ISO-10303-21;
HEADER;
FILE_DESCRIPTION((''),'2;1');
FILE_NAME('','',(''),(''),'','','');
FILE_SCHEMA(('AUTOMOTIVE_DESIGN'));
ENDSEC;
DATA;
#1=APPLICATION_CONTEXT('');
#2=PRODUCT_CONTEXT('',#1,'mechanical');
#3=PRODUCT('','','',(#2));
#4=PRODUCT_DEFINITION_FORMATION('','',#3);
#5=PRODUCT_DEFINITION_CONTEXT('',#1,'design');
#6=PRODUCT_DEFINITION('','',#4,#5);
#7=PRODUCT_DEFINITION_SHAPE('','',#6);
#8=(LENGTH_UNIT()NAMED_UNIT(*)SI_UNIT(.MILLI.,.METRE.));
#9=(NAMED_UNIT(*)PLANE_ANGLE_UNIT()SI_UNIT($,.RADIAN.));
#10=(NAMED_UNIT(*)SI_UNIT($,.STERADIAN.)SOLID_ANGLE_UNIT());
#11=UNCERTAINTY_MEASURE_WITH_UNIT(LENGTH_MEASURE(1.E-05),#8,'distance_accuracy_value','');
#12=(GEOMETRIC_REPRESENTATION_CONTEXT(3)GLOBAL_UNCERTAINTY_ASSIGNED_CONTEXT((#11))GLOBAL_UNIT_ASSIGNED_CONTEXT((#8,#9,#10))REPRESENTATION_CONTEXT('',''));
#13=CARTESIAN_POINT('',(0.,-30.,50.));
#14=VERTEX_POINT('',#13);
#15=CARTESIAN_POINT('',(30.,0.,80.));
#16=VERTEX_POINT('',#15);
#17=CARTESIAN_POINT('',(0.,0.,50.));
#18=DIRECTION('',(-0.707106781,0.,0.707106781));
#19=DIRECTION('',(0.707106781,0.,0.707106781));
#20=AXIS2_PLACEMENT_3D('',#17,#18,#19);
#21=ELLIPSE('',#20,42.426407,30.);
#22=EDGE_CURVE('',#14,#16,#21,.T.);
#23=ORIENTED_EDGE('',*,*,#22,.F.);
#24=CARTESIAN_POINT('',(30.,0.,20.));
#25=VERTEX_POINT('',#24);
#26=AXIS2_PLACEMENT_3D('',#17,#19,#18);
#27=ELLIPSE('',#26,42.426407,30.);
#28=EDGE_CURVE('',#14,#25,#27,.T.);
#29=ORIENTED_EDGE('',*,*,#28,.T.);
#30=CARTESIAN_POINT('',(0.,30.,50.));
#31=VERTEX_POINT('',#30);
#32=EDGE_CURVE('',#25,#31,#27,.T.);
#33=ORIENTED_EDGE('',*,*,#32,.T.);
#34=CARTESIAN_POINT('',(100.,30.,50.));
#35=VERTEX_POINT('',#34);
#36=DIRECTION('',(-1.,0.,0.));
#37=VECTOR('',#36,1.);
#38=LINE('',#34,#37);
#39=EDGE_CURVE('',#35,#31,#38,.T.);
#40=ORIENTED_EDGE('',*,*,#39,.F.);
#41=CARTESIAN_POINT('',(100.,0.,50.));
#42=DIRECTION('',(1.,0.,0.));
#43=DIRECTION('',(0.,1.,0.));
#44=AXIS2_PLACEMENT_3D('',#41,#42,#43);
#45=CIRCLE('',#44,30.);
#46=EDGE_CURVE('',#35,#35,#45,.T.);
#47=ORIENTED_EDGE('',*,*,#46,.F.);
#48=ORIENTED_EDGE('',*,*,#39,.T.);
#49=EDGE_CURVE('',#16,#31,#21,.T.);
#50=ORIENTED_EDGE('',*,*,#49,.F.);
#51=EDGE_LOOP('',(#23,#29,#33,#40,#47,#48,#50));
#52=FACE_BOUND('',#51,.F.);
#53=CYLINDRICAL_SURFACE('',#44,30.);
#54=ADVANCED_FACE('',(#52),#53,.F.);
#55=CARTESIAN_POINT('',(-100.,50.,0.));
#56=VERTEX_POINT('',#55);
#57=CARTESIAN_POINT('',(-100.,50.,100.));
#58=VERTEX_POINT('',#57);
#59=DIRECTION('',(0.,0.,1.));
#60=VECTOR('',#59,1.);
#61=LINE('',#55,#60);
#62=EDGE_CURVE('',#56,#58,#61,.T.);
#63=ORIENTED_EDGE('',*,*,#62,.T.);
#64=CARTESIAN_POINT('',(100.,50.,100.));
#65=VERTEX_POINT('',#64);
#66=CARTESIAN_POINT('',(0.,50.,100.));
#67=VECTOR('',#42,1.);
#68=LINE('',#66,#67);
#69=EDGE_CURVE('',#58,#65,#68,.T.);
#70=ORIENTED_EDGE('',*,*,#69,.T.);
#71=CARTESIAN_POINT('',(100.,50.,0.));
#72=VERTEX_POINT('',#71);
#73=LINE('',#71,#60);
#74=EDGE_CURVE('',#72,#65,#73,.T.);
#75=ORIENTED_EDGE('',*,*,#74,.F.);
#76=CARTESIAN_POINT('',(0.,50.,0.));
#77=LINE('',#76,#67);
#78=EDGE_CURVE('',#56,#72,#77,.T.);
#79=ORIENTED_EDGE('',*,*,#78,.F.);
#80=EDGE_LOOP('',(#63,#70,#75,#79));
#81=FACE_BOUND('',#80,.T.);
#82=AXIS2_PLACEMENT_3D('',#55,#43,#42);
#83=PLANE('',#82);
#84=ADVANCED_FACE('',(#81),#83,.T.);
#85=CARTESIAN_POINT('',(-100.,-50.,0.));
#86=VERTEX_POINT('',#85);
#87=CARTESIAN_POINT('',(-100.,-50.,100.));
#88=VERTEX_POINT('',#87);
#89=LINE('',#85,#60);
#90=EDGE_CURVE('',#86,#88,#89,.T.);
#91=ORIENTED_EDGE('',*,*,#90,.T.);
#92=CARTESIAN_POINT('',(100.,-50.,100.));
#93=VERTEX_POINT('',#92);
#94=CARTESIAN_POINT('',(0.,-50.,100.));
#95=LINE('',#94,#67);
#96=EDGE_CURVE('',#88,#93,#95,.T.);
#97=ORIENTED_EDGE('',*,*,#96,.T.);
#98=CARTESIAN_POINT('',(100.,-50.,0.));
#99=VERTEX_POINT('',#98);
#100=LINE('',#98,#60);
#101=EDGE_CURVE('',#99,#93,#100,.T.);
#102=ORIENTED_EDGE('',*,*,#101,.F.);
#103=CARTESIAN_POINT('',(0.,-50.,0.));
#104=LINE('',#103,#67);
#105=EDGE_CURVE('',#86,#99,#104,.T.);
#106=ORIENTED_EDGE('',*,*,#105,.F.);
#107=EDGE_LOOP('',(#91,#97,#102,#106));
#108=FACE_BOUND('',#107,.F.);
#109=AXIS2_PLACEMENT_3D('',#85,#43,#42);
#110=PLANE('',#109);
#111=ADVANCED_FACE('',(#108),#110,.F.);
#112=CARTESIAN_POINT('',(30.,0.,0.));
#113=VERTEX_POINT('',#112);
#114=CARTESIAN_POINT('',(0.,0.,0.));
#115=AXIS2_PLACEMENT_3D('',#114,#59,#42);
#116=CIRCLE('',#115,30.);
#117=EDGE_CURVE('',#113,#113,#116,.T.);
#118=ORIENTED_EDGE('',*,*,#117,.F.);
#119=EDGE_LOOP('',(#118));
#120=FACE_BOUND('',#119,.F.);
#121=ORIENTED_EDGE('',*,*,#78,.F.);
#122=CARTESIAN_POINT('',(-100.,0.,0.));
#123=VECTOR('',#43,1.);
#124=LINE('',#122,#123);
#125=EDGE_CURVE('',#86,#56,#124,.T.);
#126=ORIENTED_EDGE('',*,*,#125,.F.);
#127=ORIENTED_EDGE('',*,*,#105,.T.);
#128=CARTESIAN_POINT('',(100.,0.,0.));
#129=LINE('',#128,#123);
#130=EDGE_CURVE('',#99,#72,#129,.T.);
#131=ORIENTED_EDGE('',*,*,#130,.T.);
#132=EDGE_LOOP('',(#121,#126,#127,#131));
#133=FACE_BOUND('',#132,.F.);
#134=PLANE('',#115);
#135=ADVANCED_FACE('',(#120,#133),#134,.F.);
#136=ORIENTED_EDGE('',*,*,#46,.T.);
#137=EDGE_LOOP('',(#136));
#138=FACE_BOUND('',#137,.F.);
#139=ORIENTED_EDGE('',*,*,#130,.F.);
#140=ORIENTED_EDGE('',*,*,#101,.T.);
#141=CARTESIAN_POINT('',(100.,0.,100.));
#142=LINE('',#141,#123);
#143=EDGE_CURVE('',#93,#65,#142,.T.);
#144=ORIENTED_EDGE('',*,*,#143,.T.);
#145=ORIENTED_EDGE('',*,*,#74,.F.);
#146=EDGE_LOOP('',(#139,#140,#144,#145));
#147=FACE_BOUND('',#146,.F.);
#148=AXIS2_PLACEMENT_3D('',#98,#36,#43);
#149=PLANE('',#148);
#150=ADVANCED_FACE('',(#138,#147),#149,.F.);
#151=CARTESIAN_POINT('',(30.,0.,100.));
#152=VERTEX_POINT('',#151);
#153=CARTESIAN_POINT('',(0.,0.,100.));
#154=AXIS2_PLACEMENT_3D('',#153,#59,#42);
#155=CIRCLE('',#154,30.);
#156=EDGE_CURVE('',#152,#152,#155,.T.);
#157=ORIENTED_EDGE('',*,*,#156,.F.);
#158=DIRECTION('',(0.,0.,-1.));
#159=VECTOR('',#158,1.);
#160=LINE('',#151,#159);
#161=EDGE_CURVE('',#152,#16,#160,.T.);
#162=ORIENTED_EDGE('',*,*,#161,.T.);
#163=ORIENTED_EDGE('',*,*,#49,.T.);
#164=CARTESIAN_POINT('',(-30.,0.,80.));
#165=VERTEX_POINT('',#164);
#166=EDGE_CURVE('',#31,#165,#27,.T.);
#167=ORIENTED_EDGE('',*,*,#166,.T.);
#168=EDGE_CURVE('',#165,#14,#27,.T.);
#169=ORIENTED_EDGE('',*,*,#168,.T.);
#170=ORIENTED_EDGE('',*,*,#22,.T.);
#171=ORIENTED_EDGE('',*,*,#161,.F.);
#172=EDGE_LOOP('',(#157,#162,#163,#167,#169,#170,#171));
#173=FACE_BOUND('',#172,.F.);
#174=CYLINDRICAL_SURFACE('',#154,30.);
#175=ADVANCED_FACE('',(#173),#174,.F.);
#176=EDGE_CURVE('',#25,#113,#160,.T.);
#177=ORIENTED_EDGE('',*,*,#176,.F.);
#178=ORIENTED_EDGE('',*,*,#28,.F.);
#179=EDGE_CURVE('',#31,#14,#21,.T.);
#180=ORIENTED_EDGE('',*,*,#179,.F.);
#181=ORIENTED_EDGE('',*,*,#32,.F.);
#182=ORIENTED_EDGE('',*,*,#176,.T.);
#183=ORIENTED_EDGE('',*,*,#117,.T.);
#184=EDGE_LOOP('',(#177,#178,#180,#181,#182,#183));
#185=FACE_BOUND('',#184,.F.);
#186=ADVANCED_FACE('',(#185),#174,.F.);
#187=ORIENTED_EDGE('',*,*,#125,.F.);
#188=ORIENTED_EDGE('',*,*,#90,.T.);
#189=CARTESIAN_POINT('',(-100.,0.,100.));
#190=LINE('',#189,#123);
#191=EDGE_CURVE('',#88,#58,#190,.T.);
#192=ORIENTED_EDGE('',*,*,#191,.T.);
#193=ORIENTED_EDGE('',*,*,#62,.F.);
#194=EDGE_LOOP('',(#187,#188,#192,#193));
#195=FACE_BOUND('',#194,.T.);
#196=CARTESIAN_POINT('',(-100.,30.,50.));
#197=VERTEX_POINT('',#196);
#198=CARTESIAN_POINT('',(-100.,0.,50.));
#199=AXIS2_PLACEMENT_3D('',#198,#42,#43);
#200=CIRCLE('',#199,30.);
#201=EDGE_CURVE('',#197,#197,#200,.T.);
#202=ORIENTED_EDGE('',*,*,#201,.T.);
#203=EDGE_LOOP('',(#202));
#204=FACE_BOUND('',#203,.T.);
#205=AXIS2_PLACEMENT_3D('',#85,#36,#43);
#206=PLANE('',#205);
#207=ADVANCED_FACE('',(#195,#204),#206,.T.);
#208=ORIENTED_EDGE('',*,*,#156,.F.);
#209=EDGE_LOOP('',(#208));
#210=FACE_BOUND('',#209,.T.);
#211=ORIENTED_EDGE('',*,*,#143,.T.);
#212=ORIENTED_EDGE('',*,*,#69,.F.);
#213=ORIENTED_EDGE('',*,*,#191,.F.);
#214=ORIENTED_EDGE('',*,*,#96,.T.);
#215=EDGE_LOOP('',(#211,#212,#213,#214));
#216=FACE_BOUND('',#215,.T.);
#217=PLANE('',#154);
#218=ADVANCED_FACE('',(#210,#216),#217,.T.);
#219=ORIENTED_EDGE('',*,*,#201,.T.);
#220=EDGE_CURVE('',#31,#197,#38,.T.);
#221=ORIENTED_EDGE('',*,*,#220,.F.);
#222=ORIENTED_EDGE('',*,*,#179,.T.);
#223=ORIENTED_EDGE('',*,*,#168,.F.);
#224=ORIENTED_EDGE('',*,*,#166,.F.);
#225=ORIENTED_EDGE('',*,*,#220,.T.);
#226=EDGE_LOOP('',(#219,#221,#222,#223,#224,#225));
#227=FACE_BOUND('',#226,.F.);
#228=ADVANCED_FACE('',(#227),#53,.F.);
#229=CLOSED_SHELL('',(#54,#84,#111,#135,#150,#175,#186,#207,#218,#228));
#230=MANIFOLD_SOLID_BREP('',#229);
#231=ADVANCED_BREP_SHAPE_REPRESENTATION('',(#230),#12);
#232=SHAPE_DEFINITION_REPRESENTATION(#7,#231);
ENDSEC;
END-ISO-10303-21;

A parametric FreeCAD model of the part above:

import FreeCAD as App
import Part
import Sketcher

V = App.Vector

doc = App.newDocument("Part")
body = doc.addObject("PartDesign::Body", "Body")

# Sketch on XY plane
sketch1 = body.newObject("Sketcher::SketchObject", "Sketch")
sketch1.AttachmentSupport = (doc.getObject("XY_Plane"), [""])
sketch1.MapMode = "FlatFace"
sketch1.addGeometry([
    Part.LineSegment(V(-100, 50, 0), V(-100, -50, 0)),
    Part.LineSegment(V(-100, -50, 0), V(100, -50, 0)),
    Part.LineSegment(V(100, -50, 0), V(100, 50, 0)),
    Part.LineSegment(V(100, 50, 0), V(-100, 50, 0)),
], False)
sketch1.addConstraint([
    Sketcher.Constraint("Coincident", 0, 2, 1, 1),
    Sketcher.Constraint("Coincident", 1, 2, 2, 1),
    Sketcher.Constraint("Coincident", 2, 2, 3, 1),
    Sketcher.Constraint("Coincident", 3, 2, 0, 1),
    Sketcher.Constraint("Vertical", 0),
    Sketcher.Constraint("Horizontal", 1),
    Sketcher.Constraint("Vertical", 2),
    Sketcher.Constraint("Horizontal", 3),
    Sketcher.Constraint("Symmetric", 0, 2, 2, 2, -1, 1),
    Sketcher.Constraint("DistanceX", 1, 1, 1, 2, 200.0),
    Sketcher.Constraint("DistanceY", 0, 2, 0, 1, 100.0),
])
pad1 = body.newObject("PartDesign::Pad", "Pad")
pad1.Profile = sketch1
pad1.Length = 100

# Sketch on XY plane
sketch2 = body.newObject("Sketcher::SketchObject", "Sketch001")
sketch2.AttachmentSupport = (doc.getObject("XY_Plane"), [""])
sketch2.MapMode = "FlatFace"
sketch2.AttachmentOffset = App.Placement(V(0, 0, 100), App.Rotation())
sketch2.addGeometry(Part.Circle(V(0, 0, 0), V(0, 0, 1), 30), False)
sketch2.addConstraint([
    Sketcher.Constraint("Coincident", 0, 3, -1, 1),
    Sketcher.Constraint("Diameter", 0, 60.0),
])
pocket1 = body.newObject("PartDesign::Pocket", "Pocket")
pocket1.Profile = sketch2
pocket1.Type = "ThroughAll"

# Sketch on YZ plane
sketch3 = body.newObject("Sketcher::SketchObject", "Sketch002")
sketch3.AttachmentSupport = (doc.getObject("YZ_Plane"), [""])
sketch3.MapMode = "FlatFace"
sketch3.AttachmentOffset = App.Placement(V(0, 0, 100), App.Rotation())
sketch3.addGeometry(Part.Circle(V(0, 50, 0), V(0, 0, 1), 30), False)
sketch3.addConstraint([
    Sketcher.Constraint("PointOnObject", 0, 3, -2),
    Sketcher.Constraint("Diameter", 0, 60.0),
    Sketcher.Constraint("DistanceY", -1, 1, 0, 3, 50.0),
])
pocket2 = body.newObject("PartDesign::Pocket", "Pocket001")
pocket2.Profile = sketch3
pocket2.Type = "ThroughAll"

doc.recompute()
